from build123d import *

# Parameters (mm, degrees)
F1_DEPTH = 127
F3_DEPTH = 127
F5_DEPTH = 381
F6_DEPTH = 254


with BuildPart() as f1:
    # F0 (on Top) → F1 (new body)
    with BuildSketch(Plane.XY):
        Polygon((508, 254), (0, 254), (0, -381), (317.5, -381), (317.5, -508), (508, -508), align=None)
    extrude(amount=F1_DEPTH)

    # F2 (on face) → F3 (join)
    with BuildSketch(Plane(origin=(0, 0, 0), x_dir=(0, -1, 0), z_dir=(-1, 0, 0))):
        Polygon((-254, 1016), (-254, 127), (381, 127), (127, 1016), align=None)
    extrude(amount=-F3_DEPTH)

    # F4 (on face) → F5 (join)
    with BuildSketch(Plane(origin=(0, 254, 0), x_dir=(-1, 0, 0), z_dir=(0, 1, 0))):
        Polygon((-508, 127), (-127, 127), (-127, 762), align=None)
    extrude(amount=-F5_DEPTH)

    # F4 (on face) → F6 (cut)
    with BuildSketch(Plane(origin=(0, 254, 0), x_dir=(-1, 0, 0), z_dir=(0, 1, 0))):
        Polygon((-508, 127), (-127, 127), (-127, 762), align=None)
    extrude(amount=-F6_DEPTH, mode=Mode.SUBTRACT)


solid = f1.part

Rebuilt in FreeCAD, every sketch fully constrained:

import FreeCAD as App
import Part
import Sketcher
from FreeCAD import Vector
Q = App.Units.Quantity

doc = App.newDocument("Part")
body = doc.addObject("PartDesign::Body", "Body")

# Sketch on XY plane
sketch1 = body.newObject("Sketcher::SketchObject", "Sketch")
sketch1.AttachmentSupport = (doc.getObject("XY_Plane"), [""])
sketch1.MapMode = "FlatFace"
sketch1.addGeometry([
    Part.LineSegment(Vector(508, 254, 0), Vector(0, 254, 0)),  # 0
    Part.LineSegment(Vector(0, 254, 0), Vector(0, -381, 0)),  # 1
    Part.LineSegment(Vector(0, -381, 0), Vector(317.5, -381, 0)),  # 2
    Part.LineSegment(Vector(317.5, -381, 0), Vector(317.5, -508, 0)),  # 3
    Part.LineSegment(Vector(317.5, -508, 0), Vector(508, -508, 0)),  # 4
    Part.LineSegment(Vector(508, -508, 0), Vector(508, 254, 0)),  # 5
], False)
sketch1.addConstraint([
    Sketcher.Constraint("Coincident", 0, 2, 1, 1),
    Sketcher.Constraint("Coincident", 1, 2, 2, 1),
    Sketcher.Constraint("Coincident", 2, 2, 3, 1),
    Sketcher.Constraint("Coincident", 3, 2, 4, 1),
    Sketcher.Constraint("Coincident", 4, 2, 5, 1),
    Sketcher.Constraint("Coincident", 5, 2, 0, 1),
    Sketcher.Constraint("Horizontal", 0),
    Sketcher.Constraint("Vertical", 1),
    Sketcher.Constraint("Horizontal", 2),
    Sketcher.Constraint("Vertical", 3),
    Sketcher.Constraint("Horizontal", 4),
    Sketcher.Constraint("Vertical", 5),
    Sketcher.Constraint("PointOnObject", 0, 2, -2),
    Sketcher.Constraint("DistanceX", 0, 2, 0, 1, Q("20 in")),
    Sketcher.Constraint("DistanceY", 1, 2, 1, 1, Q("25 in")),
    Sketcher.Constraint("DistanceY", 3, 2, 3, 1, Q("5 in")),
    Sketcher.Constraint("DistanceX", 2, 1, 2, 2, Q("12.5 in")),
    Sketcher.Constraint("DistanceY", -1, 1, 0, 2, Q("10 in")),
])
pad1 = body.newObject("PartDesign::Pad", "Pad")
pad1.Profile = sketch1
pad1.Length = Q("5 in")

# Sketch on YZ plane
sketch2 = body.newObject("Sketcher::SketchObject", "Sketch001")
sketch2.AttachmentSupport = (doc.getObject("YZ_Plane"), [""])
sketch2.MapMode = "FlatFace"
sketch2.addGeometry([
    Part.LineSegment(Vector(254, 1016, 0), Vector(254, 127, 0)),
    Part.LineSegment(Vector(254, 127, 0), Vector(-381, 127, 0)),
    Part.LineSegment(Vector(-381, 127, 0), Vector(-127, 1016, 0)),
    Part.LineSegment(Vector(-127, 1016, 0), Vector(254, 1016, 0)),
], False)
sketch2.addConstraint([
    Sketcher.Constraint("Coincident", 0, 2, 1, 1),
    Sketcher.Constraint("Coincident", 1, 2, 2, 1),
    Sketcher.Constraint("Coincident", 2, 2, 3, 1),
    Sketcher.Constraint("Coincident", 3, 2, 0, 1),
    Sketcher.Constraint("Vertical", 0),
    Sketcher.Constraint("Horizontal", 1),
    Sketcher.Constraint("Horizontal", 3),
    Sketcher.Constraint("DistanceX", 1, 2, 1, 1, Q("25 in")),
    Sketcher.Constraint("DistanceX", 3, 1, 3, 2, Q("15 in")),
    Sketcher.Constraint("DistanceY", 0, 2, 0, 1, Q("35 in")),
    Sketcher.Constraint("DistanceX", -1, 1, 0, 2, Q("10 in")),
    Sketcher.Constraint("DistanceY", -1, 1, 0, 2, Q("5 in")),
])
pad2 = body.newObject("PartDesign::Pad", "Pad001")
pad2.Profile = sketch2
pad2.Length = Q("5 in")

# Sketch on XZ plane
sketch3 = body.newObject("Sketcher::SketchObject", "Sketch002")
sketch3.AttachmentSupport = (doc.getObject("XZ_Plane"), [""])
sketch3.MapMode = "FlatFace"
sketch3.AttachmentOffset = App.Placement(Vector(0, 0, -10 * 25.4), App.Rotation())
sketch3.addGeometry([
    Part.LineSegment(Vector(508, 127, 0), Vector(127, 127, 0)),
    Part.LineSegment(Vector(127, 127, 0), Vector(127, 762, 0)),
    Part.LineSegment(Vector(127, 762, 0), Vector(508, 127, 0)),
], False)
sketch3.addConstraint([
    Sketcher.Constraint("Coincident", 0, 2, 1, 1),
    Sketcher.Constraint("Coincident", 1, 2, 2, 1),
    Sketcher.Constraint("Coincident", 2, 2, 0, 1),
    Sketcher.Constraint("Horizontal", 0),
    Sketcher.Constraint("Vertical", 1),
    Sketcher.Constraint("DistanceX", 0, 2, 0, 1, Q("15 in")),
    Sketcher.Constraint("DistanceY", 1, 1, 1, 2, Q("25 in")),
    Sketcher.Constraint("DistanceX", -1, 1, 0, 2, Q("5 in")),
    Sketcher.Constraint("DistanceY", -1, 1, 0, 2, Q("5 in")),
])
pad3 = body.newObject("PartDesign::Pad", "Pad002")
pad3.Profile = sketch3
pad3.Length = Q("15 in")

# Sketch on XZ plane
sketch4 = body.newObject("Sketcher::SketchObject", "Sketch003")
sketch4.AttachmentSupport = (doc.getObject("XZ_Plane"), [""])
sketch4.MapMode = "FlatFace"
sketch4.AttachmentOffset = App.Placement(Vector(0, 0, -10 * 25.4), App.Rotation())
sketch4.addGeometry([
    Part.LineSegment(Vector(508, 127, 0), Vector(127, 127, 0)),
    Part.LineSegment(Vector(127, 127, 0), Vector(127, 762, 0)),
    Part.LineSegment(Vector(127, 762, 0), Vector(508, 127, 0)),
], False)
sketch4.addConstraint([
    Sketcher.Constraint("Coincident", 0, 2, 1, 1),
    Sketcher.Constraint("Coincident", 1, 2, 2, 1),
    Sketcher.Constraint("Coincident", 2, 2, 0, 1),
    Sketcher.Constraint("Horizontal", 0),
    Sketcher.Constraint("Vertical", 1),
    Sketcher.Constraint("DistanceX", 0, 2, 0, 1, Q("15 in")),
    Sketcher.Constraint("DistanceY", 1, 1, 1, 2, Q("25 in")),
    Sketcher.Constraint("DistanceX", -1, 1, 0, 2, Q("5 in")),
    Sketcher.Constraint("DistanceY", -1, 1, 0, 2, Q("5 in")),
])
pocket1 = body.newObject("PartDesign::Pocket", "Pocket")
pocket1.Profile = sketch4
pocket1.Length = Q("10 in")
pocket1.Reversed = True

doc.recompute()
